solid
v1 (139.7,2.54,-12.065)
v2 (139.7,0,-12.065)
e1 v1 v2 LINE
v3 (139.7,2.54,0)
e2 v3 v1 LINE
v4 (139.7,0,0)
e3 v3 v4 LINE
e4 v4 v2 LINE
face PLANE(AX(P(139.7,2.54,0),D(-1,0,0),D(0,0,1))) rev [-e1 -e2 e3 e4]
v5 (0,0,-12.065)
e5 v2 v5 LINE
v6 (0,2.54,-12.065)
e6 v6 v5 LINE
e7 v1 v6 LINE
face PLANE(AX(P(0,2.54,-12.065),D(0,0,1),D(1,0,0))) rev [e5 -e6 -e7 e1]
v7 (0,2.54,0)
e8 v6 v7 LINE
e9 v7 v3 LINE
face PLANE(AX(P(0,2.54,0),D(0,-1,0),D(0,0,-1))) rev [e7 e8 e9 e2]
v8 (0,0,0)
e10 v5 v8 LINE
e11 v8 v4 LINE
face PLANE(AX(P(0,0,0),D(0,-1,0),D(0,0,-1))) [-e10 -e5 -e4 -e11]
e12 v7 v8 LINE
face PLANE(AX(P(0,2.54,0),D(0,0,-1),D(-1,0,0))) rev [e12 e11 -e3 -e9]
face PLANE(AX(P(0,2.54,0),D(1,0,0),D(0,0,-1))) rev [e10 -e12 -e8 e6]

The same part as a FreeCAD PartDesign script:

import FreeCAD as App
import Part
import Sketcher
from FreeCAD import Vector
Q = App.Units.Quantity


def add_polygon(sketch, points):
    """Adds a closed chain of lines whose ends are joined by coincident constraints."""
    first, n = sketch.GeometryCount, len(points)
    for a, b in zip(points, points[1:] + points[:1]):
        sketch.addGeometry(Part.LineSegment(App.Vector(*a, 0), App.Vector(*b, 0)), False)
    for i in range(n):
        sketch.addConstraint(Sketcher.Constraint("Coincident", first + i, 2, first + (i + 1) % n, 1))

doc = App.newDocument("Part")
params = doc.addObject("Spreadsheet::Sheet", "Params")
for row, (alias, value) in enumerate([
    ("sketch1_width", "5.5 in"),
    ("sketch1_height", "0.475 in"),
    ("pad1_length", "0.1 in"),
], start=1):
    params.set(f"A{row}", alias)
    params.set(f"B{row}", "=" + value)
    params.setAlias(f"B{row}", alias)

body = doc.addObject("PartDesign::Body", "Body")

# Sketch on XZ plane
sketch1 = doc.addObject("Sketcher::SketchObject", "Sketch")
body.addObject(sketch1)
sketch1.AttachmentSupport = (doc.XZ_Plane, [""])
sketch1.MapMode = "FlatFace"
add_polygon(sketch1, [(0, -12), (0, 0), (140, 0), (140, -12)])  # lines 0-3
sketch1.addConstraint([
    Sketcher.Constraint("Vertical", 0),
    Sketcher.Constraint("Horizontal", 1),
    Sketcher.Constraint("Vertical", 2),
    Sketcher.Constraint("Horizontal", 3),
    Sketcher.Constraint("Coincident", 0, 2, -1, 1),
    Sketcher.Constraint("DistanceX", 1, 1, 1, 2, Q("5.5 in")),
    Sketcher.Constraint("DistanceY", 0, 1, 0, 2, Q("0.475 in")),
])
sketch1.setExpression("Constraints[9]", "Params.sketch1_width")
sketch1.setExpression("Constraints[10]", "Params.sketch1_height")
pad1 = doc.addObject("PartDesign::Pad", "Pad")
body.addObject(pad1)
pad1.Profile = sketch1
pad1.setExpression("Length", "Params.pad1_length")
pad1.Reversed = True

doc.recompute()
